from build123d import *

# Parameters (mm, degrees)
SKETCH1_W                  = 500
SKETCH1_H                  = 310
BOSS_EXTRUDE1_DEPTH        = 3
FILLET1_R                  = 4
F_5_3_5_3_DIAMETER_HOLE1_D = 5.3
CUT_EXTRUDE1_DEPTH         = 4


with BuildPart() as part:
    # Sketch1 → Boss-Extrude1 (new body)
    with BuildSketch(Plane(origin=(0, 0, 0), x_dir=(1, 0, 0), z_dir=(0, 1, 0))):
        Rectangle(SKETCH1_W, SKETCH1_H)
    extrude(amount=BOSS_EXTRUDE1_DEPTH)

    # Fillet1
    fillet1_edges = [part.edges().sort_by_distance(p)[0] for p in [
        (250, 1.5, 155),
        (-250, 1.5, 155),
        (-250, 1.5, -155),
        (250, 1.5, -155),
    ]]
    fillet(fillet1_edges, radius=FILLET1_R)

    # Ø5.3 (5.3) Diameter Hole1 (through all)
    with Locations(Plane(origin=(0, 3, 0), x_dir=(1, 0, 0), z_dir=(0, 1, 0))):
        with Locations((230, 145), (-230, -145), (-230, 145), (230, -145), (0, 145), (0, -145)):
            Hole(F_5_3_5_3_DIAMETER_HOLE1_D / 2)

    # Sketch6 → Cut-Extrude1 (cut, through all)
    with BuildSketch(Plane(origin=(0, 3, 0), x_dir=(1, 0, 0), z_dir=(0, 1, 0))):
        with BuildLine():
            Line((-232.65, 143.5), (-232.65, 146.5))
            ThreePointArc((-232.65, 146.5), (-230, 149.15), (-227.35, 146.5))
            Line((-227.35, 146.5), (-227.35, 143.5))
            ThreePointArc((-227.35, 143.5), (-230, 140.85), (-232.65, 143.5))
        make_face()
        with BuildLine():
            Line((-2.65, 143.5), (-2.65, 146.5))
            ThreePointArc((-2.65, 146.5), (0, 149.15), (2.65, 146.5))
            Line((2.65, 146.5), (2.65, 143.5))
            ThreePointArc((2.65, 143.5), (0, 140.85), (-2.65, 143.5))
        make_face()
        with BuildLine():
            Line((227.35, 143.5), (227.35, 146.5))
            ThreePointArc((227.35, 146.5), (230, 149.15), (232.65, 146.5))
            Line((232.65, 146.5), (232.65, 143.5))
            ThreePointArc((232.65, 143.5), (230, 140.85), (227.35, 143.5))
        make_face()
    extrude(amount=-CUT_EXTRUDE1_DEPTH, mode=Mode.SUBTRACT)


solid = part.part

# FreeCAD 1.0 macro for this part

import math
import FreeCAD as App
import Part
import Sketcher
from FreeCAD import Vector


def edges_at(feature, points):
    """Names of the edges that pass closest to the given points."""
    edges = feature.Shape.Edges
    near = lambda p: min(range(len(edges)), key=lambda i: edges[i].distToShape(Part.Vertex(*p))[0])
    return sorted({f"Edge{near(p) + 1}" for p in points})

doc = App.newDocument("Part")
body = doc.addObject("PartDesign::Body", "Body")

# Sketch on XZ plane
sketch1 = doc.addObject("Sketcher::SketchObject", "Sketch")
body.addObject(sketch1)
sketch1.AttachmentSupport = (doc.XZ_Plane, [""])
sketch1.MapMode = "FlatFace"
sketch1.addGeometry(Part.LineSegment(Vector(-250, -155, 0), Vector(-250, 155, 0)), False)
sketch1.addGeometry(Part.LineSegment(Vector(-250, 155, 0), Vector(250, 155, 0)), False)
sketch1.addGeometry(Part.LineSegment(Vector(250, 155, 0), Vector(250, -155, 0)), False)
sketch1.addGeometry(Part.LineSegment(Vector(250, -155, 0), Vector(-250, -155, 0)), False)
sketch1.addConstraint(Sketcher.Constraint("Coincident", 0, 2, 1, 1))
sketch1.addConstraint(Sketcher.Constraint("Coincident", 1, 2, 2, 1))
sketch1.addConstraint(Sketcher.Constraint("Coincident", 2, 2, 3, 1))
sketch1.addConstraint(Sketcher.Constraint("Coincident", 3, 2, 0, 1))
sketch1.addConstraint(Sketcher.Constraint("Vertical", 0))
sketch1.addConstraint(Sketcher.Constraint("Horizontal", 1))
sketch1.addConstraint(Sketcher.Constraint("Vertical", 2))
sketch1.addConstraint(Sketcher.Constraint("Horizontal", 3))
sketch1.addConstraint(Sketcher.Constraint("Symmetric", 0, 2, 2, 2, -1, 1))
sketch1.addConstraint(Sketcher.Constraint("DistanceX", 1, 1, 1, 2, 500.0))
sketch1.addConstraint(Sketcher.Constraint("DistanceY", 0, 1, 0, 2, 310.0))
pad1 = doc.addObject("PartDesign::Pad", "Pad")
body.addObject(pad1)
pad1.Profile = sketch1
pad1.Length = 3
pad1.Reversed = True
doc.recompute()

fillet = doc.addObject("PartDesign::Fillet", "Fillet")
body.addObject(fillet)
fillet.Base = (pad1, edges_at(pad1, [
    (250, 1.5, 155),
    (-250, 1.5, 155),
    (-250, 1.5, -155),
    (250, 1.5, -155),
]))
fillet.Radius = 4

# Sketch on XZ plane
sketch2 = doc.addObject("Sketcher::SketchObject", "Sketch001")
body.addObject(sketch2)
sketch2.AttachmentSupport = (doc.XZ_Plane, [""])
sketch2.MapMode = "FlatFace"
sketch2.AttachmentOffset = App.Placement(Vector(0, 0, -3), App.Rotation())
sketch2.addGeometry(Part.Circle(Vector(230, -145, 0), Vector(0, 0, 1), 2.6), False)
sketch2.addGeometry(Part.Circle(Vector(-230, 145, 0), Vector(0, 0, 1), 2.6), False)
sketch2.addGeometry(Part.Circle(Vector(-230, -145, 0), Vector(0, 0, 1), 2.6), False)
sketch2.addGeometry(Part.Circle(Vector(230, 145, 0), Vector(0, 0, 1), 2.6), False)
sketch2.addGeometry(Part.Circle(Vector(0, -145, 0), Vector(0, 0, 1), 2.6), False)
sketch2.addGeometry(Part.Circle(Vector(0, 145, 0), Vector(0, 0, 1), 2.6), False)
sketch2.addConstraint(Sketcher.Constraint("Equal", 0, 1))
sketch2.addConstraint(Sketcher.Constraint("Equal", 1, 2))
sketch2.addConstraint(Sketcher.Constraint("Equal", 2, 3))
sketch2.addConstraint(Sketcher.Constraint("Equal", 3, 4))
sketch2.addConstraint(Sketcher.Constraint("Equal", 4, 5))
sketch2.addConstraint(Sketcher.Constraint("Symmetric", 0, 3, 1, 3, -1, 1))
sketch2.addConstraint(Sketcher.Constraint("Symmetric", 2, 3, 3, 3, -1, 1))
sketch2.addConstraint(Sketcher.Constraint("Symmetric", 4, 3, 5, 3, -1, 1))
sketch2.addConstraint(Sketcher.Constraint("Symmetric", 0, 3, 2, 3, -2))
sketch2.addConstraint(Sketcher.Constraint("PointOnObject", 4, 3, -2))
sketch2.addConstraint(Sketcher.Constraint("Horizontal", 2, 3, 4, 3))
sketch2.addConstraint(Sketcher.Constraint("Diameter", 0, 5.3))
sketch2.addConstraint(Sketcher.Constraint("DistanceX", -1, 1, 0, 3, 230.0))
sketch2.addConstraint(Sketcher.Constraint("DistanceY", 0, 3, -1, 1, 145.0))
doc.recompute()
hole = doc.addObject("PartDesign::Hole", "Hole")
body.addObject(hole)
hole.Profile = sketch2
hole.ThreadType = "None"
hole.Diameter = 5.3
hole.DepthType = "ThroughAll"
hole.Reversed = True

# Sketch on XZ plane
sketch3 = doc.addObject("Sketcher::SketchObject", "Sketch002")
body.addObject(sketch3)
sketch3.AttachmentSupport = (doc.XZ_Plane, [""])
sketch3.MapMode = "FlatFace"
sketch3.AttachmentOffset = App.Placement(Vector(0, 0, -3), App.Rotation())
sketch3.addGeometry(Part.LineSegment(Vector(-232.7, -146.5, 0), Vector(-232.7, -143.5, 0)), False)
sketch3.addGeometry(Part.ArcOfCircle(Part.Circle(Vector(-230, -143.5, 0), Vector(0, 0, 1), 2.6), math.radians(0), math.radians(180)), False)
sketch3.addGeometry(Part.LineSegment(Vector(-227.3, -143.5, 0), Vector(-227.3, -146.5, 0)), False)
sketch3.addGeometry(Part.ArcOfCircle(Part.Circle(Vector(-230, -146.5, 0), Vector(0, 0, 1), 2.6), math.radians(180), math.radians(360)), False)
sketch3.addGeometry(Part.LineSegment(Vector(-2.6, -146.5, 0), Vector(-2.6, -143.5, 0)), False)
sketch3.addGeometry(Part.ArcOfCircle(Part.Circle(Vector(0, -143.5, 0), Vector(0, 0, 1), 2.6), math.radians(0), math.radians(180)), False)
sketch3.addGeometry(Part.LineSegment(Vector(2.6, -143.5, 0), Vector(2.6, -146.5, 0)), False)
sketch3.addGeometry(Part.ArcOfCircle(Part.Circle(Vector(0, -146.5, 0), Vector(0, 0, 1), 2.6), math.radians(180), math.radians(360)), False)
sketch3.addGeometry(Part.LineSegment(Vector(227.3, -146.5, 0), Vector(227.3, -143.5, 0)), False)
sketch3.addGeometry(Part.ArcOfCircle(Part.Circle(Vector(230, -143.5, 0), Vector(0, 0, 1), 2.6), math.radians(0), math.radians(180)), False)
sketch3.addGeometry(Part.LineSegment(Vector(232.7, -143.5, 0), Vector(232.7, -146.5, 0)), False)
sketch3.addGeometry(Part.ArcOfCircle(Part.Circle(Vector(230, -146.5, 0), Vector(0, 0, 1), 2.6), math.radians(180), math.radians(360)), False)
sketch3.addConstraint(Sketcher.Constraint("Tangent", 0, 2, 1, 2))
sketch3.addConstraint(Sketcher.Constraint("Tangent", 1, 1, 2, 1))
sketch3.addConstraint(Sketcher.Constraint("Tangent", 2, 2, 3, 2))
sketch3.addConstraint(Sketcher.Constraint("Tangent", 3, 1, 0, 1))
sketch3.addConstraint(Sketcher.Constraint("Tangent", 4, 2, 5, 2))
sketch3.addConstraint(Sketcher.Constraint("Tangent", 5, 1, 6, 1))
sketch3.addConstraint(Sketcher.Constraint("Tangent", 6, 2, 7, 2))
sketch3.addConstraint(Sketcher.Constraint("Tangent", 7, 1, 4, 1))
sketch3.addConstraint(Sketcher.Constraint("Tangent", 8, 2, 9, 2))
sketch3.addConstraint(Sketcher.Constraint("Tangent", 9, 1, 10, 1))
sketch3.addConstraint(Sketcher.Constraint("Tangent", 10, 2, 11, 2))
sketch3.addConstraint(Sketcher.Constraint("Tangent", 11, 1, 8, 1))
sketch3.addConstraint(Sketcher.Constraint("Vertical", 0))
sketch3.addConstraint(Sketcher.Constraint("Vertical", 2))
sketch3.addConstraint(Sketcher.Constraint("Vertical", 4))
sketch3.addConstraint(Sketcher.Constraint("Vertical", 6))
sketch3.addConstraint(Sketcher.Constraint("Vertical", 8))
sketch3.addConstraint(Sketcher.Constraint("Vertical", 10))
sketch3.addConstraint(Sketcher.Constraint("Equal", 3, 5))
sketch3.addConstraint(Sketcher.Constraint("Equal", 7, 9))
sketch3.addConstraint(Sketcher.Constraint("Symmetric", 1, 3, 9, 3, -2))
sketch3.addConstraint(Sketcher.Constraint("PointOnObject", 5, 3, -2))
sketch3.addConstraint(Sketcher.Constraint("Horizontal", 1, 3, 5, 3))
sketch3.addConstraint(Sketcher.Constraint("Horizontal", 3, 3, 7, 3))
sketch3.addConstraint(Sketcher.Constraint("Horizontal", 7, 3, 11, 3))
sketch3.addConstraint(Sketcher.Constraint("DistanceY", 0, 1, 0, 2, 3.0))
sketch3.addConstraint(Sketcher.Constraint("Radius", 1, 2.65))
sketch3.addConstraint(Sketcher.Constraint("DistanceX", 1, 3, -1, 1, 230.0))
sketch3.addConstraint(Sketcher.Constraint("DistanceY", 1, 3, -1, 1, 143.5))
pocket1 = doc.addObject("PartDesign::Pocket", "Pocket")
body.addObject(pocket1)
pocket1.Profile = sketch3
pocket1.Type = "ThroughAll"
pocket1.Reversed = True

doc.recompute()
